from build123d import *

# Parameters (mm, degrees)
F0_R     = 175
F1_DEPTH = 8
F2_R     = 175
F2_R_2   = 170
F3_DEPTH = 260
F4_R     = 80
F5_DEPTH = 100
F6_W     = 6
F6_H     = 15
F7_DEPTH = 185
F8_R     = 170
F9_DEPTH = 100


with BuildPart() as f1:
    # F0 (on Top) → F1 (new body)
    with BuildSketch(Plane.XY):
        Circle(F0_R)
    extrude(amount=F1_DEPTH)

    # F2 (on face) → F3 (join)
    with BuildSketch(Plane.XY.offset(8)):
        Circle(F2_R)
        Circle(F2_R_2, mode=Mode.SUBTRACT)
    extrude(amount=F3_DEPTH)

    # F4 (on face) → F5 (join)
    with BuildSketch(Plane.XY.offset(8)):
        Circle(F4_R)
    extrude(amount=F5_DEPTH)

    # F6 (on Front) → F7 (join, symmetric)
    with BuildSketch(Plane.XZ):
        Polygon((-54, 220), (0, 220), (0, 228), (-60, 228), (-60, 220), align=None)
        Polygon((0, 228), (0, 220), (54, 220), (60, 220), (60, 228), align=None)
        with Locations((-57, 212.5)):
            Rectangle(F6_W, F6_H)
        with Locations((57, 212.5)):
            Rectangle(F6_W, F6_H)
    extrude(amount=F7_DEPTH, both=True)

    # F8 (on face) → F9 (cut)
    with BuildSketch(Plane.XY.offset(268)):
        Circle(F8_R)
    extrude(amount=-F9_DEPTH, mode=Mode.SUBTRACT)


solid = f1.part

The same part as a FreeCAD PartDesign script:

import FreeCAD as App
import Part
import Sketcher
from FreeCAD import Vector
Q = App.Units.Quantity

doc = App.newDocument("Part")
body = doc.addObject("PartDesign::Body", "Body")

sketch1 = body.newObject("Sketcher::SketchObject", "Sketch")
sketch1.AttachmentSupport = (doc.getObject("XY_Plane"), [""])
sketch1.MapMode = "FlatFace"
sketch1.addGeometry(Part.Circle(Vector(0, 0, 0), Vector(0, 0, 1), 175), False)
sketch1.addConstraint([
    Sketcher.Constraint("Coincident", 0, 3, -1, 1),
    Sketcher.Constraint("Diameter", 0, Q("350 mm")),
])
pad1 = body.newObject("PartDesign::Pad", "Pad")
pad1.Profile = sketch1
pad1.Length = 8

sketch2 = body.newObject("Sketcher::SketchObject", "Sketch001")
sketch2.AttachmentSupport = (doc.getObject("XY_Plane"), [""])
sketch2.MapMode = "FlatFace"
sketch2.AttachmentOffset = App.Placement(Vector(0, 0, 8), App.Rotation())
sketch2.addGeometry([
    Part.Circle(Vector(0, 0, 0), Vector(0, 0, 1), 175),
    Part.Circle(Vector(0, 0, 0), Vector(0, 0, 1), 170),
], False)
sketch2.addConstraint([
    Sketcher.Constraint("Coincident", 0, 3, -1, 1),
    Sketcher.Constraint("Coincident", 1, 3, -1, 1),
    Sketcher.Constraint("Diameter", 0, Q("350 mm")),
    Sketcher.Constraint("Diameter", 1, Q("340 mm")),
])
pad2 = body.newObject("PartDesign::Pad", "Pad001")
pad2.Profile = sketch2
pad2.Length = 260

sketch3 = body.newObject("Sketcher::SketchObject", "Sketch002")
sketch3.AttachmentSupport = (doc.getObject("XY_Plane"), [""])
sketch3.MapMode = "FlatFace"
sketch3.AttachmentOffset = App.Placement(Vector(0, 0, 8), App.Rotation())
sketch3.addGeometry(Part.Circle(Vector(0, 0, 0), Vector(0, 0, 1), 80), False)
sketch3.addConstraint([
    Sketcher.Constraint("Coincident", 0, 3, -1, 1),
    Sketcher.Constraint("Diameter", 0, Q("160 mm")),
])
pad3 = body.newObject("PartDesign::Pad", "Pad002")
pad3.Profile = sketch3
pad3.Length = 100

sketch4 = body.newObject("Sketcher::SketchObject", "Sketch003")
sketch4.AttachmentSupport = (doc.getObject("XZ_Plane"), [""])
sketch4.MapMode = "FlatFace"
sketch4.addGeometry([
    Part.LineSegment(Vector(-60, 228, 0), Vector(-60, 205, 0)),
    Part.LineSegment(Vector(-60, 205, 0), Vector(-54, 205, 0)),
    Part.LineSegment(Vector(-54, 205, 0), Vector(-54, 220, 0)),
    Part.LineSegment(Vector(-54, 220, 0), Vector(54, 220, 0)),
    Part.LineSegment(Vector(54, 220, 0), Vector(54, 205, 0)),
    Part.LineSegment(Vector(54, 205, 0), Vector(60, 205, 0)),
    Part.LineSegment(Vector(60, 205, 0), Vector(60, 228, 0)),
    Part.LineSegment(Vector(60, 228, 0), Vector(-60, 228, 0)),
], False)
sketch4.addConstraint([
    Sketcher.Constraint("Coincident", 0, 2, 1, 1),
    Sketcher.Constraint("Coincident", 1, 2, 2, 1),
    Sketcher.Constraint("Coincident", 2, 2, 3, 1),
    Sketcher.Constraint("Coincident", 3, 2, 4, 1),
    Sketcher.Constraint("Coincident", 4, 2, 5, 1),
    Sketcher.Constraint("Coincident", 5, 2, 6, 1),
    Sketcher.Constraint("Coincident", 6, 2, 7, 1),
    Sketcher.Constraint("Coincident", 7, 2, 0, 1),
    Sketcher.Constraint("Vertical", 0),
    Sketcher.Constraint("Horizontal", 1),
    Sketcher.Constraint("Vertical", 2),
    Sketcher.Constraint("Horizontal", 3),
    Sketcher.Constraint("Vertical", 4),
    Sketcher.Constraint("Horizontal", 5),
    Sketcher.Constraint("Vertical", 6),
    Sketcher.Constraint("Horizontal", 7),
    Sketcher.Constraint("Symmetric", 1, 2, 4, 2, -2),
    Sketcher.Constraint("Equal", 1, 5),
    Sketcher.Constraint("DistanceX", 1, 1, 1, 2, Q("6 mm")),
    Sketcher.Constraint("DistanceX", 3, 1, 3, 2, Q("108 mm")),
    Sketcher.Constraint("DistanceY", 0, 2, 0, 1, Q("23 mm")),
    Sketcher.Constraint("DistanceY", 2, 1, 2, 2, Q("15 mm")),
    Sketcher.Constraint("DistanceY", -1, 1, 0, 2, Q("205 mm")),
])
pad4 = body.newObject("PartDesign::Pad", "Pad003")
pad4.Profile = sketch4
pad4.Length = 370
pad4.Midplane = True

sketch5 = body.newObject("Sketcher::SketchObject", "Sketch004")
sketch5.AttachmentSupport = (doc.getObject("XY_Plane"), [""])
sketch5.MapMode = "FlatFace"
sketch5.AttachmentOffset = App.Placement(Vector(0, 0, 268), App.Rotation())
sketch5.addGeometry(Part.Circle(Vector(0, 0, 0), Vector(0, 0, 1), 170), False)
sketch5.addConstraint([
    Sketcher.Constraint("Coincident", 0, 3, -1, 1),
    Sketcher.Constraint("Diameter", 0, Q("340 mm")),
])
pocket1 = body.newObject("PartDesign::Pocket", "Pocket")
pocket1.Profile = sketch5
pocket1.Length = 100

doc.recompute()
